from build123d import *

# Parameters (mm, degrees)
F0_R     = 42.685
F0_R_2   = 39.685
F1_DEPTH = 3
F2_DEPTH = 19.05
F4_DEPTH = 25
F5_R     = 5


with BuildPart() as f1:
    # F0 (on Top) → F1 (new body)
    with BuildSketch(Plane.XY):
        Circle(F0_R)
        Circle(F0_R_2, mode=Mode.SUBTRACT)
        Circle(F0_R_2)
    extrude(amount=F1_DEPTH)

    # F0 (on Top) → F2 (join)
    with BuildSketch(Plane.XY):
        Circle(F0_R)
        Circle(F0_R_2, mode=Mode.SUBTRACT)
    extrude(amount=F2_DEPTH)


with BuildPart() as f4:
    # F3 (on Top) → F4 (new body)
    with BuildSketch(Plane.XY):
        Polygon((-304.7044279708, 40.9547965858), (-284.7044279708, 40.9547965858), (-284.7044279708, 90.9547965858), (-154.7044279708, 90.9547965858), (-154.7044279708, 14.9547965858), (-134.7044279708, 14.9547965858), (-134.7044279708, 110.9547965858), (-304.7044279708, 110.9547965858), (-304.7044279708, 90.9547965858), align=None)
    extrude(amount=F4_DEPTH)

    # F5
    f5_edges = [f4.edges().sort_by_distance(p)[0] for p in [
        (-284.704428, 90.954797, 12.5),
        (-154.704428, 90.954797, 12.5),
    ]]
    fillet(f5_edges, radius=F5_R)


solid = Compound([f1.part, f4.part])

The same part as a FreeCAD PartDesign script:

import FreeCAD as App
import Part
import Sketcher

V = App.Vector
Q = App.Units.Quantity


def edges_at(feature, points):
    """Names of the edges that pass closest to the given points."""
    edges = feature.Shape.Edges
    near = lambda p: min(range(len(edges)), key=lambda i: edges[i].distToShape(Part.Vertex(*p))[0])
    return sorted({f"Edge{near(p) + 1}" for p in points})


def add_polygon(sketch, points):
    """Adds a closed chain of lines whose ends are joined by coincident constraints."""
    first, n = sketch.GeometryCount, len(points)
    for a, b in zip(points, points[1:] + points[:1]):
        sketch.addGeometry(Part.LineSegment(App.Vector(*a, 0), App.Vector(*b, 0)), False)
    for i in range(n):
        sketch.addConstraint(Sketcher.Constraint("Coincident", first + i, 2, first + (i + 1) % n, 1))

doc = App.newDocument("Part")
body = doc.addObject("PartDesign::Body", "Body")

# Sketch on XY plane
sketch1 = body.newObject("Sketcher::SketchObject", "Sketch")
sketch1.AttachmentSupport = (doc.getObject("XY_Plane"), [""])
sketch1.MapMode = "FlatFace"
sketch1.addGeometry(Part.Circle(V(0, 0, 0), V(0, 0, 1), 43), False)
sketch1.addConstraint(Sketcher.Constraint("Coincident", 0, 3, -1, 1))
sketch1.addConstraint(Sketcher.Constraint("Diameter", 0, Q("85.37 mm")))
pad1 = body.newObject("PartDesign::Pad", "Pad")
pad1.Profile = sketch1
pad1.Length = 3

# Sketch on XY plane
sketch2 = body.newObject("Sketcher::SketchObject", "Sketch001")
sketch2.AttachmentSupport = (doc.getObject("XY_Plane"), [""])
sketch2.MapMode = "FlatFace"
sketch2.addGeometry(Part.Circle(V(0, 0, 0), V(0, 0, 1), 43), False)
sketch2.addGeometry(Part.Circle(V(0, 0, 0), V(0, 0, 1), 40), False)
sketch2.addConstraint(Sketcher.Constraint("Coincident", 0, 3, -1, 1))
sketch2.addConstraint(Sketcher.Constraint("Coincident", 1, 3, -1, 1))
sketch2.addConstraint(Sketcher.Constraint("Diameter", 0, Q("85.37 mm")))
sketch2.addConstraint(Sketcher.Constraint("Diameter", 1, Q("79.37 mm")))
pad2 = body.newObject("PartDesign::Pad", "Pad001")
pad2.Profile = sketch2
pad2.Length = 19.05
body2 = doc.addObject("PartDesign::Body", "Body001")

# Sketch on XY plane
sketch3 = body2.newObject("Sketcher::SketchObject", "Sketch002")
sketch3.AttachmentSupport = (doc.getObject("XY_Plane001"), [""])
sketch3.MapMode = "FlatFace"
add_polygon(sketch3, [(-305, 41), (-285, 41), (-285, 91), (-155, 91), (-155, 15), (-135, 15), (-135, 111), (-305, 111)])  # lines 0-7
sketch3.addConstraint(Sketcher.Constraint("Horizontal", 0))
sketch3.addConstraint(Sketcher.Constraint("Vertical", 1))
sketch3.addConstraint(Sketcher.Constraint("Horizontal", 2))
sketch3.addConstraint(Sketcher.Constraint("Vertical", 3))
sketch3.addConstraint(Sketcher.Constraint("Horizontal", 4))
sketch3.addConstraint(Sketcher.Constraint("Vertical", 5))
sketch3.addConstraint(Sketcher.Constraint("Horizontal", 6))
sketch3.addConstraint(Sketcher.Constraint("Vertical", 7))
sketch3.addConstraint(Sketcher.Constraint("Equal", 0, 4))
sketch3.addConstraint(Sketcher.Constraint("DistanceX", 0, 1, 0, 2, Q("20 mm")))
sketch3.addConstraint(Sketcher.Constraint("DistanceX", 2, 1, 2, 2, Q("130 mm")))
sketch3.addConstraint(Sketcher.Constraint("DistanceY", 1, 1, 1, 2, Q("50 mm")))
sketch3.addConstraint(Sketcher.Constraint("DistanceY", 3, 2, 3, 1, Q("76 mm")))
sketch3.addConstraint(Sketcher.Constraint("DistanceY", 5, 1, 5, 2, Q("96 mm")))
sketch3.addConstraint(Sketcher.Constraint("DistanceX", 0, 2, -1, 1, Q("284.704428 mm")))
sketch3.addConstraint(Sketcher.Constraint("DistanceY", -1, 1, 0, 2, Q("40.954797 mm")))
pad3 = body2.newObject("PartDesign::Pad", "Pad002")
pad3.Profile = sketch3
pad3.Length = 25
doc.recompute()

fillet = body2.newObject("PartDesign::Fillet", "Fillet")
fillet.Base = (pad3, edges_at(pad3, [(-284.704, 90.955, 12.5), (-154.704, 90.955, 12.5)]))
fillet.Radius = 5

doc.recompute()
